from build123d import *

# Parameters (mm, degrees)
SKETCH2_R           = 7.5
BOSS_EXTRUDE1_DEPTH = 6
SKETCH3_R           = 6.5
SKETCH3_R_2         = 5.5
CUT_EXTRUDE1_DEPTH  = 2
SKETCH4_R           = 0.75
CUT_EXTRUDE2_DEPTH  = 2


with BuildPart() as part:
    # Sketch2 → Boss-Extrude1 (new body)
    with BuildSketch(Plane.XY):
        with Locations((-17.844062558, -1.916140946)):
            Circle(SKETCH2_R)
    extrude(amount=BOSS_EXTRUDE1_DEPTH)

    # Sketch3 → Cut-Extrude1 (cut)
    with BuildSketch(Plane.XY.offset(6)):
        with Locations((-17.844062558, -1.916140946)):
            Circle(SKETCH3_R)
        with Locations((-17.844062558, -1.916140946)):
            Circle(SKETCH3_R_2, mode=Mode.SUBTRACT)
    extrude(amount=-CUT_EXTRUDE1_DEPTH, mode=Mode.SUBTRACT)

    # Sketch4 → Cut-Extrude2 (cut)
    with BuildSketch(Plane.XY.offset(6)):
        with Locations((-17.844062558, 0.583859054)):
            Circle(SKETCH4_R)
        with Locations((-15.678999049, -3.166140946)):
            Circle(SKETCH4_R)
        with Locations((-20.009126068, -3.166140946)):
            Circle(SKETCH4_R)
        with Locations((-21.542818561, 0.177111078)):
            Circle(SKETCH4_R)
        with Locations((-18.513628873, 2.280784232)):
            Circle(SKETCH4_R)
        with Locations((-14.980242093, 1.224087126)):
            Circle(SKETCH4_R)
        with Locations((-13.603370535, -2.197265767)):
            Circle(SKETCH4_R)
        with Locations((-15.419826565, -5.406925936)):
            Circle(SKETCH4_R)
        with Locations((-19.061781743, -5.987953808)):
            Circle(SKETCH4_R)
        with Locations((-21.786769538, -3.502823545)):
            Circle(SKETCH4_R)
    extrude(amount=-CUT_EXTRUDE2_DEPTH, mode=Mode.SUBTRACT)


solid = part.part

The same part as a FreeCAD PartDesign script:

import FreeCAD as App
import Part
import Sketcher

V = App.Vector
Q = App.Units.Quantity

doc = App.newDocument("Part")
body = doc.addObject("PartDesign::Body", "Body")

# Sketch on XY plane
sketch1 = body.newObject("Sketcher::SketchObject", "Sketch")
sketch1.AttachmentSupport = (doc.getObject("XY_Plane"), [""])
sketch1.MapMode = "FlatFace"
sketch1.addGeometry(Part.Circle(V(-18, -2, 0), V(0, 0, 1), 8), False)
sketch1.addConstraint(Sketcher.Constraint("Diameter", 0, Q("15 mm")))
sketch1.addConstraint(Sketcher.Constraint("DistanceY", 0, 3, -1, 1, Q("1.916141 mm")))
sketch1.addConstraint(Sketcher.Constraint("DistanceX", 0, 3, -1, 1, Q("17.844063 mm")))
pad1 = body.newObject("PartDesign::Pad", "Pad")
pad1.Profile = sketch1
pad1.Length = 6

# Sketch on XY plane
sketch2 = body.newObject("Sketcher::SketchObject", "Sketch001")
sketch2.AttachmentSupport = (doc.getObject("XY_Plane"), [""])
sketch2.MapMode = "FlatFace"
sketch2.AttachmentOffset = App.Placement(V(0, 0, 6), App.Rotation())
sketch2.addGeometry(Part.Circle(V(-18, -2, 0), V(0, 0, 1), 6), False)
sketch2.addGeometry(Part.Circle(V(-18, -2, 0), V(0, 0, 1), 6), False)
sketch2.addConstraint(Sketcher.Constraint("Coincident", 1, 3, 0, 3))
sketch2.addConstraint(Sketcher.Constraint("Diameter", 0, Q("13 mm")))
sketch2.addConstraint(Sketcher.Constraint("Diameter", 1, Q("11 mm")))
sketch2.addConstraint(Sketcher.Constraint("DistanceY", 0, 3, -1, 1, Q("1.916141 mm")))
sketch2.addConstraint(Sketcher.Constraint("DistanceX", 0, 3, -1, 1, Q("17.844063 mm")))
pocket1 = body.newObject("PartDesign::Pocket", "Pocket")
pocket1.Profile = sketch2
pocket1.Length = 2

# Sketch on XY plane
sketch3 = body.newObject("Sketcher::SketchObject", "Sketch002")
sketch3.AttachmentSupport = (doc.getObject("XY_Plane"), [""])
sketch3.MapMode = "FlatFace"
sketch3.AttachmentOffset = App.Placement(V(0, 0, 6), App.Rotation())
sketch3.addGeometry(Part.Circle(V(-17.8, 0.6, 0), V(0, 0, 1), 0.8), False)
sketch3.addGeometry(Part.Circle(V(-15.7, -3.2, 0), V(0, 0, 1), 0.8), False)
sketch3.addGeometry(Part.Circle(V(-20, -3.2, 0), V(0, 0, 1), 0.8), False)
sketch3.addGeometry(Part.Circle(V(-21.5, 0.2, 0), V(0, 0, 1), 0.8), False)
sketch3.addGeometry(Part.Circle(V(-18.5, 2.3, 0), V(0, 0, 1), 0.8), False)
sketch3.addGeometry(Part.Circle(V(-15, 1.2, 0), V(0, 0, 1), 0.8), False)
sketch3.addGeometry(Part.Circle(V(-13.6, -2.2, 0), V(0, 0, 1), 0.8), False)
sketch3.addGeometry(Part.Circle(V(-15.4, -5.4, 0), V(0, 0, 1), 0.8), False)
sketch3.addGeometry(Part.Circle(V(-19.1, -6, 0), V(0, 0, 1), 0.8), False)
sketch3.addGeometry(Part.Circle(V(-21.8, -3.5, 0), V(0, 0, 1), 0.8), False)
sketch3.addConstraint(Sketcher.Constraint("Equal", 0, 1))
sketch3.addConstraint(Sketcher.Constraint("Equal", 1, 2))
sketch3.addConstraint(Sketcher.Constraint("Equal", 2, 3))
sketch3.addConstraint(Sketcher.Constraint("Equal", 3, 4))
sketch3.addConstraint(Sketcher.Constraint("Equal", 4, 5))
sketch3.addConstraint(Sketcher.Constraint("Equal", 5, 6))
sketch3.addConstraint(Sketcher.Constraint("Equal", 6, 7))
sketch3.addConstraint(Sketcher.Constraint("Equal", 7, 8))
sketch3.addConstraint(Sketcher.Constraint("Equal", 8, 9))
sketch3.addConstraint(Sketcher.Constraint("Horizontal", 1, 3, 2, 3))
sketch3.addConstraint(Sketcher.Constraint("Diameter", 0, Q("1.5 mm")))
sketch3.addConstraint(Sketcher.Constraint("DistanceY", 1, 3, 0, 3, Q("3.75 mm")))
sketch3.addConstraint(Sketcher.Constraint("DistanceX", 1, 3, -1, 1, Q("15.678999 mm")))
sketch3.addConstraint(Sketcher.Constraint("DistanceX", 2, 3, 7, 3, Q("4.5893 mm")))
sketch3.addConstraint(Sketcher.Constraint("DistanceY", -1, 1, 0, 3, Q("0.583859 mm")))
sketch3.addConstraint(Sketcher.Constraint("DistanceX", 3, 3, -1, 1, Q("21.542819 mm")))
sketch3.addConstraint(Sketcher.Constraint("DistanceY", -1, 1, 3, 3, Q("0.177111 mm")))
sketch3.addConstraint(Sketcher.Constraint("DistanceX", 4, 3, -1, 1, Q("18.513629 mm")))
sketch3.addConstraint(Sketcher.Constraint("DistanceX", 6, 3, -1, 1, Q("13.603371 mm")))
sketch3.addConstraint(Sketcher.Constraint("DistanceX", 8, 3, -1, 1, Q("19.061782 mm")))
sketch3.addConstraint(Sketcher.Constraint("DistanceX", 9, 3, -1, 1, Q("21.78677 mm")))
sketch3.addConstraint(Sketcher.Constraint("DistanceX", 0, 3, 5, 3, Q("2.86382 mm")))
sketch3.addConstraint(Sketcher.Constraint("DistanceY", 0, 3, 5, 3, Q("0.640228 mm")))
sketch3.addConstraint(Sketcher.Constraint("DistanceX", 5, 3, 6, 3, Q("1.376872 mm")))
sketch3.addConstraint(Sketcher.Constraint("DistanceY", 6, 3, 4, 3, Q("4.47805 mm")))
sketch3.addConstraint(Sketcher.Constraint("DistanceY", 7, 3, 6, 3, Q("3.20966 mm")))
sketch3.addConstraint(Sketcher.Constraint("DistanceY", 8, 3, 6, 3, Q("3.790688 mm")))
sketch3.addConstraint(Sketcher.Constraint("DistanceY", 8, 3, 9, 3, Q("2.48513 mm")))
sketch3.addConstraint(Sketcher.Constraint("DistanceX", 2, 3, -1, 1, Q("20.009126 mm")))
sketch3.addConstraint(Sketcher.Constraint("DistanceY", -1, 1, 4, 3, Q("2.280784 mm")))
pocket2 = body.newObject("PartDesign::Pocket", "Pocket001")
pocket2.Profile = sketch3
pocket2.Length = 2

doc.recompute()
